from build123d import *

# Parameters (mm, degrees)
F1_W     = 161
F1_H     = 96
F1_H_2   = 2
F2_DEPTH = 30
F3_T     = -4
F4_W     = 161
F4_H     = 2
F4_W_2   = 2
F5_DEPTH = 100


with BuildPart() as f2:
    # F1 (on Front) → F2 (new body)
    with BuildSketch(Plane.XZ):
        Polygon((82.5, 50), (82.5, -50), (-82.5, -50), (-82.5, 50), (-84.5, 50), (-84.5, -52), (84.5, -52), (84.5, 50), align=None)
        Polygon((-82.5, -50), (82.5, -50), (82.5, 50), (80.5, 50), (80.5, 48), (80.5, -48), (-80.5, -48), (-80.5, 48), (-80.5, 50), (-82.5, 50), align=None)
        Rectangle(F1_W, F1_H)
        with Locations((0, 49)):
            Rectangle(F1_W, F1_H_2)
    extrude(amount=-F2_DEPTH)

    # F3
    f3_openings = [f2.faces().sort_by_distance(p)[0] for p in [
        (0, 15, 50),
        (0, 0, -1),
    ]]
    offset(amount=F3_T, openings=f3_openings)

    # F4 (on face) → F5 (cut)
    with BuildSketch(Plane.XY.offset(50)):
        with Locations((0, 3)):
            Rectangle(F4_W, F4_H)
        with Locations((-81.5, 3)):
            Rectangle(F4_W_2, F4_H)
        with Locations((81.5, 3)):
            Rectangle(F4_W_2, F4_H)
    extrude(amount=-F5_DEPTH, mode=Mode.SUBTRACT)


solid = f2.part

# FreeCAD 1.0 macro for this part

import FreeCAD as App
import Part
import Sketcher
Q = App.Units.Quantity


def faces_at(feature, points):
    """Names of the faces that lie closest to the given points."""
    faces = feature.Shape.Faces
    near = lambda p: min(range(len(faces)), key=lambda i: faces[i].distToShape(Part.Vertex(*p))[0])
    return sorted({f"Face{near(p) + 1}" for p in points})

doc = App.newDocument("Part")
body = doc.addObject("PartDesign::Body", "Body")

# Sketch on XZ plane
sketch1 = doc.addObject("Sketcher::SketchObject", "Sketch")
body.addObject(sketch1)
sketch1.AttachmentSupport = (doc.XZ_Plane, [""])
sketch1.MapMode = "FlatFace"
sketch1.addGeometry([
    Part.LineSegment(App.Vector(-84.5, 50, 0), App.Vector(-84.5, -52, 0)),
    Part.LineSegment(App.Vector(-84.5, -52, 0), App.Vector(84.5, -52, 0)),
    Part.LineSegment(App.Vector(84.5, -52, 0), App.Vector(84.5, 50, 0)),
    Part.LineSegment(App.Vector(84.5, 50, 0), App.Vector(-84.5, 50, 0)),
], False)
sketch1.addConstraint([
    Sketcher.Constraint("Coincident", 0, 2, 1, 1),
    Sketcher.Constraint("Coincident", 1, 2, 2, 1),
    Sketcher.Constraint("Coincident", 2, 2, 3, 1),
    Sketcher.Constraint("Coincident", 3, 2, 0, 1),
    Sketcher.Constraint("Vertical", 0),
    Sketcher.Constraint("Horizontal", 1),
    Sketcher.Constraint("Vertical", 2),
    Sketcher.Constraint("Horizontal", 3),
    Sketcher.Constraint("DistanceX", 1, 1, 1, 2, Q("169 mm")),
    Sketcher.Constraint("DistanceY", 0, 2, 0, 1, Q("102 mm")),
    Sketcher.Constraint("DistanceY", 0, 2, -1, 1, Q("52 mm")),
    Sketcher.Constraint("DistanceX", 0, 2, -1, 1, Q("84.5 mm")),
])
pad1 = doc.addObject("PartDesign::Pad", "Pad")
body.addObject(pad1)
pad1.Profile = sketch1
pad1.Length = 30
pad1.Reversed = True
doc.recompute()

thickness = doc.addObject("PartDesign::Thickness", "Thickness")
body.addObject(thickness)
thickness.Base = (pad1, faces_at(pad1, [(0, 15, 50), (0, 0, -1)]))
thickness.Value = 4
thickness.Reversed = True
thickness.Join = "Arc"

# Sketch on XY plane
sketch2 = doc.addObject("Sketcher::SketchObject", "Sketch001")
body.addObject(sketch2)
sketch2.AttachmentSupport = (doc.XY_Plane, [""])
sketch2.MapMode = "FlatFace"
sketch2.AttachmentOffset = App.Placement(App.Vector(0, 0, 50), App.Rotation())
sketch2.addGeometry([
    Part.LineSegment(App.Vector(-82.5, 4, 0), App.Vector(-82.5, 2, 0)),
    Part.LineSegment(App.Vector(-82.5, 2, 0), App.Vector(82.5, 2, 0)),
    Part.LineSegment(App.Vector(82.5, 2, 0), App.Vector(82.5, 4, 0)),
    Part.LineSegment(App.Vector(82.5, 4, 0), App.Vector(-82.5, 4, 0)),
], False)
sketch2.addConstraint([
    Sketcher.Constraint("Coincident", 0, 2, 1, 1),
    Sketcher.Constraint("Coincident", 1, 2, 2, 1),
    Sketcher.Constraint("Coincident", 2, 2, 3, 1),
    Sketcher.Constraint("Coincident", 3, 2, 0, 1),
    Sketcher.Constraint("Vertical", 0),
    Sketcher.Constraint("Horizontal", 1),
    Sketcher.Constraint("Vertical", 2),
    Sketcher.Constraint("Horizontal", 3),
    Sketcher.Constraint("DistanceX", 1, 1, 1, 2, Q("165 mm")),
    Sketcher.Constraint("DistanceY", 0, 2, 0, 1, Q("2 mm")),
    Sketcher.Constraint("DistanceY", -1, 1, 0, 2, Q("2 mm")),
    Sketcher.Constraint("DistanceX", 0, 2, -1, 1, Q("82.5 mm")),
])
pocket1 = doc.addObject("PartDesign::Pocket", "Pocket")
body.addObject(pocket1)
pocket1.Profile = sketch2
pocket1.Length = 100

doc.recompute()
